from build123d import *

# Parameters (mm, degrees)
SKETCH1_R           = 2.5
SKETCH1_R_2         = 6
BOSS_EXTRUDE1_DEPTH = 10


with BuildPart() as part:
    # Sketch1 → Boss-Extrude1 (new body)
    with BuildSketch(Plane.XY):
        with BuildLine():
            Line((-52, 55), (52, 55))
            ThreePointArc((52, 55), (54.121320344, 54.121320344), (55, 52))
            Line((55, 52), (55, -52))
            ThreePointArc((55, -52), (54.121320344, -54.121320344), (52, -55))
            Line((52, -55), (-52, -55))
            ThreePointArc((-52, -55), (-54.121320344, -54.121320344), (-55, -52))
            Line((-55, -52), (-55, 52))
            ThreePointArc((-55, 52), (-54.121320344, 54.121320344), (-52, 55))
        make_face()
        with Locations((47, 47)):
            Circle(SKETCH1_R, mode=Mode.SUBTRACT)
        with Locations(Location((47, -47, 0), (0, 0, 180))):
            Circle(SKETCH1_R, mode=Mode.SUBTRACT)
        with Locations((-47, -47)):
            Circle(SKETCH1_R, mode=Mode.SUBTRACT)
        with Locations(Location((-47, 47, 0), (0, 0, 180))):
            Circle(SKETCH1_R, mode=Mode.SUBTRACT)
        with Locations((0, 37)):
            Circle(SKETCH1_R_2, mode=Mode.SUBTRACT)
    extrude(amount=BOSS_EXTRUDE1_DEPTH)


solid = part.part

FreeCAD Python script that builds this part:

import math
import FreeCAD as App
import Part
import Sketcher
from FreeCAD import Vector

doc = App.newDocument("Part")
body = doc.addObject("PartDesign::Body", "Body")

# Sketch on XY plane
sketch1 = body.newObject("Sketcher::SketchObject", "Sketch")
sketch1.AttachmentSupport = (doc.getObject("XY_Plane"), [""])
sketch1.MapMode = "FlatFace"
sketch1.addGeometry(Part.LineSegment(Vector(52, 55, 0), Vector(-52, 55, 0)), False)
sketch1.addGeometry(Part.ArcOfCircle(Part.Circle(Vector(-52, 52, 0), Vector(0, 0, 1), 3), math.radians(90), math.radians(180)), False)
sketch1.addGeometry(Part.LineSegment(Vector(-55, 52, 0), Vector(-55, -52, 0)), False)
sketch1.addGeometry(Part.ArcOfCircle(Part.Circle(Vector(-52, -52, 0), Vector(0, 0, 1), 3), math.radians(180), math.radians(270)), False)
sketch1.addGeometry(Part.LineSegment(Vector(-52, -55, 0), Vector(52, -55, 0)), False)
sketch1.addGeometry(Part.ArcOfCircle(Part.Circle(Vector(52, -52, 0), Vector(0, 0, 1), 3), math.radians(-90), math.radians(0)), False)
sketch1.addGeometry(Part.LineSegment(Vector(55, -52, 0), Vector(55, 52, 0)), False)
sketch1.addGeometry(Part.ArcOfCircle(Part.Circle(Vector(52, 52, 0), Vector(0, 0, 1), 3), math.radians(0), math.radians(90)), False)
sketch1.addGeometry(Part.Circle(Vector(47, -47, 0), Vector(0, 0, 1), 2.5), False)
sketch1.addGeometry(Part.Circle(Vector(-47, -47, 0), Vector(0, 0, 1), 2.5), False)
sketch1.addGeometry(Part.Circle(Vector(47, 47, 0), Vector(0, 0, 1), 2.5), False)
sketch1.addGeometry(Part.Circle(Vector(0, 37, 0), Vector(0, 0, 1), 6), False)
sketch1.addGeometry(Part.Circle(Vector(-47, 47, 0), Vector(0, 0, 1), 2.5), False)
sketch1.addConstraint(Sketcher.Constraint("Tangent", 0, 2, 1, 1))
sketch1.addConstraint(Sketcher.Constraint("Tangent", 1, 2, 2, 1))
sketch1.addConstraint(Sketcher.Constraint("Tangent", 2, 2, 3, 1))
sketch1.addConstraint(Sketcher.Constraint("Tangent", 3, 2, 4, 1))
sketch1.addConstraint(Sketcher.Constraint("Tangent", 4, 2, 5, 1))
sketch1.addConstraint(Sketcher.Constraint("Tangent", 5, 2, 6, 1))
sketch1.addConstraint(Sketcher.Constraint("Tangent", 6, 2, 7, 1))
sketch1.addConstraint(Sketcher.Constraint("Tangent", 7, 2, 0, 1))
sketch1.addConstraint(Sketcher.Constraint("Horizontal", 0))
sketch1.addConstraint(Sketcher.Constraint("Vertical", 2))
sketch1.addConstraint(Sketcher.Constraint("Horizontal", 4))
sketch1.addConstraint(Sketcher.Constraint("Vertical", 6))
sketch1.addConstraint(Sketcher.Constraint("Equal", 1, 3))
sketch1.addConstraint(Sketcher.Constraint("Equal", 3, 5))
sketch1.addConstraint(Sketcher.Constraint("Equal", 5, 7))
sketch1.addConstraint(Sketcher.Constraint("Equal", 8, 9))
sketch1.addConstraint(Sketcher.Constraint("Equal", 9, 10))
sketch1.addConstraint(Sketcher.Constraint("Equal", 10, 12))
sketch1.addConstraint(Sketcher.Constraint("Symmetric", 1, 3, 5, 3, -1, 1))
sketch1.addConstraint(Sketcher.Constraint("Symmetric", 9, 3, 10, 3, -1, 1))
sketch1.addConstraint(Sketcher.Constraint("Symmetric", 8, 3, 12, 3, -1, 1))
sketch1.addConstraint(Sketcher.Constraint("Symmetric", 8, 3, 9, 3, -2))
sketch1.addConstraint(Sketcher.Constraint("PointOnObject", 11, 3, -2))
sketch1.addConstraint(Sketcher.Constraint("Equal", 4, 2))
sketch1.addConstraint(Sketcher.Constraint("Diameter", 8, 5.0))
sketch1.addConstraint(Sketcher.Constraint("Diameter", 11, 12.0))
sketch1.addConstraint(Sketcher.Constraint("Radius", 1, 3.0))
sketch1.addConstraint(Sketcher.Constraint("DistanceX", 0, 2, 0, 1, 104.0))
sketch1.addConstraint(Sketcher.Constraint("DistanceX", -1, 1, 8, 3, 47.0))
sketch1.addConstraint(Sketcher.Constraint("DistanceY", 8, 3, -1, 1, 47.0))
sketch1.addConstraint(Sketcher.Constraint("DistanceY", -1, 1, 11, 3, 37.0))
pad1 = body.newObject("PartDesign::Pad", "Pad")
pad1.Profile = sketch1
pad1.Length = 10

doc.recompute()
